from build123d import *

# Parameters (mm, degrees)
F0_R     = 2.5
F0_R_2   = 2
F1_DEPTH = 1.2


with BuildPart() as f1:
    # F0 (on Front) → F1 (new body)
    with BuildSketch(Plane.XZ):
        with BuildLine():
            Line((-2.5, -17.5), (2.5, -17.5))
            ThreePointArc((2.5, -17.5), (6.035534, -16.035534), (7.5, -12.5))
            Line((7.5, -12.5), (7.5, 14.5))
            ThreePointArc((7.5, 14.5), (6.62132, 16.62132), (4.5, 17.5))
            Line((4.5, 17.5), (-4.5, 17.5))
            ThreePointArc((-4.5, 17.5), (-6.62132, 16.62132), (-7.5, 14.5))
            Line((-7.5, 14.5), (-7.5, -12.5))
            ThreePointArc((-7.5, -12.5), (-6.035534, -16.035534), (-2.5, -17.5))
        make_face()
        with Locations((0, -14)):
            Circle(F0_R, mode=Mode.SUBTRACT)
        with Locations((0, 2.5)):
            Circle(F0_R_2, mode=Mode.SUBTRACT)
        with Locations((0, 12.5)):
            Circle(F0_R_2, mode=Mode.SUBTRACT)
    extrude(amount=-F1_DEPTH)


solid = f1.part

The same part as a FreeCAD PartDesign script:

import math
import FreeCAD as App
import Part
import Sketcher
from FreeCAD import Vector
Q = App.Units.Quantity

doc = App.newDocument("Part")
body = doc.addObject("PartDesign::Body", "Body")

sketch1 = body.newObject("Sketcher::SketchObject", "Sketch")
sketch1.AttachmentSupport = (doc.getObject("XZ_Plane"), [""])
sketch1.MapMode = "FlatFace"
sketch1.addGeometry([
    Part.LineSegment(Vector(-2.5, -17.5, 0), Vector(2.5, -17.5, 0)),
    Part.ArcOfCircle(Part.Circle(Vector(2.5, -12.5, 0), Vector(0, 0, 1), 5), math.radians(-90), math.radians(0)),
    Part.LineSegment(Vector(7.5, -12.5, 0), Vector(7.5, 14.5, 0)),
    Part.ArcOfCircle(Part.Circle(Vector(4.5, 14.5, 0), Vector(0, 0, 1), 3), math.radians(0), math.radians(90)),
    Part.LineSegment(Vector(4.5, 17.5, 0), Vector(-4.5, 17.5, 0)),
    Part.ArcOfCircle(Part.Circle(Vector(-4.5, 14.5, 0), Vector(0, 0, 1), 3), math.radians(90), math.radians(180)),
    Part.LineSegment(Vector(-7.5, 14.5, 0), Vector(-7.5, -12.5, 0)),
    Part.ArcOfCircle(Part.Circle(Vector(-2.5, -12.5, 0), Vector(0, 0, 1), 5), math.radians(180), math.radians(270)),
    Part.Circle(Vector(0, -14, 0), Vector(0, 0, 1), 2.5),
    Part.Circle(Vector(0, 2.5, 0), Vector(0, 0, 1), 2),
    Part.Circle(Vector(0, 12.5, 0), Vector(0, 0, 1), 2),
], False)
sketch1.addConstraint([
    Sketcher.Constraint("Tangent", 0, 2, 1, 1),
    Sketcher.Constraint("Tangent", 1, 2, 2, 1),
    Sketcher.Constraint("Tangent", 2, 2, 3, 1),
    Sketcher.Constraint("Tangent", 3, 2, 4, 1),
    Sketcher.Constraint("Tangent", 4, 2, 5, 1),
    Sketcher.Constraint("Tangent", 5, 2, 6, 1),
    Sketcher.Constraint("Tangent", 6, 2, 7, 1),
    Sketcher.Constraint("Tangent", 7, 2, 0, 1),
    Sketcher.Constraint("Horizontal", 0),
    Sketcher.Constraint("Vertical", 2),
    Sketcher.Constraint("Horizontal", 4),
    Sketcher.Constraint("Vertical", 6),
    Sketcher.Constraint("Equal", 3, 5),
    Sketcher.Constraint("Equal", 1, 7),
    Sketcher.Constraint("Equal", 9, 10),
    Sketcher.Constraint("PointOnObject", 8, 3, -2),
    Sketcher.Constraint("PointOnObject", 9, 3, -2),
    Sketcher.Constraint("PointOnObject", 10, 3, -2),
    Sketcher.Constraint("Diameter", 8, Q("5 mm")),
    Sketcher.Constraint("Diameter", 9, Q("4 mm")),
    Sketcher.Constraint("Radius", 1, Q("5 mm")),
    Sketcher.Constraint("Radius", 3, Q("3.000001 mm")),
    Sketcher.Constraint("DistanceX", 0, 1, 0, 2, Q("5 mm")),
    Sketcher.Constraint("DistanceY", 2, 1, 2, 2, Q("27 mm")),
    Sketcher.Constraint("DistanceY", 8, 3, -1, 1, Q("14 mm")),
    Sketcher.Constraint("DistanceY", 9, 3, 3, 3, Q("11.999999 mm")),
    Sketcher.Constraint("DistanceY", 10, 3, 3, 3, Q("1.999999 mm")),
    Sketcher.Constraint("DistanceX", -1, 1, 1, 3, Q("2.5 mm")),
    Sketcher.Constraint("DistanceY", 1, 3, -1, 1, Q("12.5 mm")),
])
pad1 = body.newObject("PartDesign::Pad", "Pad")
pad1.Profile = sketch1
pad1.Length = 1.2
pad1.Reversed = True

doc.recompute()
